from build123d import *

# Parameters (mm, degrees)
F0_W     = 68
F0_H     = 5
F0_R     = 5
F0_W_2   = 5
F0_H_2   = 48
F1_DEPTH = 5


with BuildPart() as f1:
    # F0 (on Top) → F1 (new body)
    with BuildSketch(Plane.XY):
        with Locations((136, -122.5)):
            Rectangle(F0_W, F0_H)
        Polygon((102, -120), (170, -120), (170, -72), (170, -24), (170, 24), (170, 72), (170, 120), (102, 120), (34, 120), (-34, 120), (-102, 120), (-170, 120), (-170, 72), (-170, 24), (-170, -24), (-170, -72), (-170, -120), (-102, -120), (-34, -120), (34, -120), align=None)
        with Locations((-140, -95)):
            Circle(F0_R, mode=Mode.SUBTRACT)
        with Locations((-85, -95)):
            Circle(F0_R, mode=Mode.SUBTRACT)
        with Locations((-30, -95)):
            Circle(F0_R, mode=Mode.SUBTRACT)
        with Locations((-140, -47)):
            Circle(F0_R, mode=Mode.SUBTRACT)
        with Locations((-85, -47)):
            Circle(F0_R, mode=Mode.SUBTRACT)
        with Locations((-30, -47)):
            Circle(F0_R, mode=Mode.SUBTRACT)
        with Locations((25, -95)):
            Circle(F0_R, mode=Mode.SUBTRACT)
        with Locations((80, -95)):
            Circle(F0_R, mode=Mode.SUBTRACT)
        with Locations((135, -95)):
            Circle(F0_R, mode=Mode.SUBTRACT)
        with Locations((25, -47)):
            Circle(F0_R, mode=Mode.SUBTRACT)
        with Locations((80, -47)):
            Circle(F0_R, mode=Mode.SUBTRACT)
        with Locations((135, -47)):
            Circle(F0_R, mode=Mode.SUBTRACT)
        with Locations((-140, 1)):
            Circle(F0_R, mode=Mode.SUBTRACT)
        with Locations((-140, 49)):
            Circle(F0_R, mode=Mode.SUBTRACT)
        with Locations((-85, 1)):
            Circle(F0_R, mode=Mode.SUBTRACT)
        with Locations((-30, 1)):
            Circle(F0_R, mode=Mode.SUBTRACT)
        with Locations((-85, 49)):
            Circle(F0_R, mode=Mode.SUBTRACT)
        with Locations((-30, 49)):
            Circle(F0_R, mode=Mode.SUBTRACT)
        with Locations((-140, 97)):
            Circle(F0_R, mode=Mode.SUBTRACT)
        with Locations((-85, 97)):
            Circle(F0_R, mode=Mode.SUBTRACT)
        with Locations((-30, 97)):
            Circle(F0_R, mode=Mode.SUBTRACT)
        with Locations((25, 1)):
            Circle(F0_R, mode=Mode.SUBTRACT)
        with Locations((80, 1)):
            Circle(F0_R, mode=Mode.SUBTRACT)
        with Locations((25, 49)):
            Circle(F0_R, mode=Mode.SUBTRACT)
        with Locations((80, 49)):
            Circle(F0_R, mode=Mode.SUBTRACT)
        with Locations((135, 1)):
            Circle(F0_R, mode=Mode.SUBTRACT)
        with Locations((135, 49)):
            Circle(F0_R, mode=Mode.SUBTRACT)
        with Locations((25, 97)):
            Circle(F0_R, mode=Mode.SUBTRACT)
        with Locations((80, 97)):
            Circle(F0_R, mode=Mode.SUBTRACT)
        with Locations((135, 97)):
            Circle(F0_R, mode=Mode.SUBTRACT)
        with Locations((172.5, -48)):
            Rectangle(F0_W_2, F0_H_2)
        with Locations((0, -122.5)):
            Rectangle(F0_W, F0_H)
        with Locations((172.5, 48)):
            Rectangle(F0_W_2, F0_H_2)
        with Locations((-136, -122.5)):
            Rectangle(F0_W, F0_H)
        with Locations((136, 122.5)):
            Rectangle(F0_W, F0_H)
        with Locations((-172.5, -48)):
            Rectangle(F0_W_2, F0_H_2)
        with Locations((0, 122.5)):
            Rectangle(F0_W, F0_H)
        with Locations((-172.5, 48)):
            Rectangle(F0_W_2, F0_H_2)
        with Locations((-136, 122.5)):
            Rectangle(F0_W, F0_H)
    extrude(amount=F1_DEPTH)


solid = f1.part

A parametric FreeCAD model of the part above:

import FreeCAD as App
import Part
import Sketcher

V = App.Vector
Q = App.Units.Quantity

doc = App.newDocument("Part")
body = doc.addObject("PartDesign::Body", "Body")

# Sketch on XY plane
sketch1 = doc.addObject("Sketcher::SketchObject", "Sketch")
body.addObject(sketch1)
sketch1.AttachmentSupport = (doc.XY_Plane, [""])
sketch1.MapMode = "FlatFace"
sketch1.addGeometry(Part.LineSegment(V(102, -120, 0), V(102, -125, 0)), False)
sketch1.addGeometry(Part.LineSegment(V(102, -125, 0), V(170, -125, 0)), False)
sketch1.addGeometry(Part.LineSegment(V(170, -125, 0), V(170, -72, 0)), False)
sketch1.addGeometry(Part.LineSegment(V(170, -72, 0), V(175, -72, 0)), False)
sketch1.addGeometry(Part.LineSegment(V(175, -72, 0), V(175, -24, 0)), False)
sketch1.addGeometry(Part.LineSegment(V(175, -24, 0), V(170, -24, 0)), False)
sketch1.addGeometry(Part.LineSegment(V(170, -24, 0), V(170, 24, 0)), False)
sketch1.addGeometry(Part.LineSegment(V(170, 24, 0), V(175, 24, 0)), False)
sketch1.addGeometry(Part.LineSegment(V(175, 24, 0), V(175, 72, 0)), False)
sketch1.addGeometry(Part.LineSegment(V(175, 72, 0), V(170, 72, 0)), False)
sketch1.addGeometry(Part.LineSegment(V(170, 72, 0), V(170, 125, 0)), False)
sketch1.addGeometry(Part.LineSegment(V(170, 125, 0), V(102, 125, 0)), False)
sketch1.addGeometry(Part.LineSegment(V(102, 125, 0), V(102, 120, 0)), False)
sketch1.addGeometry(Part.LineSegment(V(102, 120, 0), V(34, 120, 0)), False)
sketch1.addGeometry(Part.LineSegment(V(34, 120, 0), V(34, 125, 0)), False)
sketch1.addGeometry(Part.LineSegment(V(34, 125, 0), V(-34, 125, 0)), False)
sketch1.addGeometry(Part.LineSegment(V(-34, 125, 0), V(-34, 120, 0)), False)
sketch1.addGeometry(Part.LineSegment(V(-34, 120, 0), V(-102, 120, 0)), False)
sketch1.addGeometry(Part.LineSegment(V(-102, 120, 0), V(-102, 125, 0)), False)
sketch1.addGeometry(Part.LineSegment(V(-102, 125, 0), V(-170, 125, 0)), False)
sketch1.addGeometry(Part.LineSegment(V(-170, 125, 0), V(-170, 72, 0)), False)
sketch1.addGeometry(Part.LineSegment(V(-170, 72, 0), V(-175, 72, 0)), False)
sketch1.addGeometry(Part.LineSegment(V(-175, 72, 0), V(-175, 24, 0)), False)
sketch1.addGeometry(Part.LineSegment(V(-175, 24, 0), V(-170, 24, 0)), False)
sketch1.addGeometry(Part.LineSegment(V(-170, 24, 0), V(-170, -24, 0)), False)
sketch1.addGeometry(Part.LineSegment(V(-170, -24, 0), V(-175, -24, 0)), False)
sketch1.addGeometry(Part.LineSegment(V(-175, -24, 0), V(-175, -72, 0)), False)
sketch1.addGeometry(Part.LineSegment(V(-175, -72, 0), V(-170, -72, 0)), False)
sketch1.addGeometry(Part.LineSegment(V(-170, -72, 0), V(-170, -125, 0)), False)
sketch1.addGeometry(Part.LineSegment(V(-170, -125, 0), V(-102, -125, 0)), False)
sketch1.addGeometry(Part.LineSegment(V(-102, -125, 0), V(-102, -120, 0)), False)
sketch1.addGeometry(Part.LineSegment(V(-102, -120, 0), V(-34, -120, 0)), False)
sketch1.addGeometry(Part.LineSegment(V(-34, -120, 0), V(-34, -125, 0)), False)
sketch1.addGeometry(Part.LineSegment(V(-34, -125, 0), V(34, -125, 0)), False)
sketch1.addGeometry(Part.LineSegment(V(34, -125, 0), V(34, -120, 0)), False)
sketch1.addGeometry(Part.LineSegment(V(34, -120, 0), V(102, -120, 0)), False)
sketch1.addGeometry(Part.Circle(V(-140, -95, 0), V(0, 0, 1), 5), False)
sketch1.addGeometry(Part.Circle(V(-85, -95, 0), V(0, 0, 1), 5), False)
sketch1.addGeometry(Part.Circle(V(-30, -95, 0), V(0, 0, 1), 5), False)
sketch1.addGeometry(Part.Circle(V(-140, -47, 0), V(0, 0, 1), 5), False)
sketch1.addGeometry(Part.Circle(V(-85, -47, 0), V(0, 0, 1), 5), False)
sketch1.addGeometry(Part.Circle(V(-30, -47, 0), V(0, 0, 1), 5), False)
sketch1.addGeometry(Part.Circle(V(25, -95, 0), V(0, 0, 1), 5), False)
sketch1.addGeometry(Part.Circle(V(80, -95, 0), V(0, 0, 1), 5), False)
sketch1.addGeometry(Part.Circle(V(135, -95, 0), V(0, 0, 1), 5), False)
sketch1.addGeometry(Part.Circle(V(25, -47, 0), V(0, 0, 1), 5), False)
sketch1.addGeometry(Part.Circle(V(80, -47, 0), V(0, 0, 1), 5), False)
sketch1.addGeometry(Part.Circle(V(135, -47, 0), V(0, 0, 1), 5), False)
sketch1.addGeometry(Part.Circle(V(-140, 1, 0), V(0, 0, 1), 5), False)
sketch1.addGeometry(Part.Circle(V(-85, 1, 0), V(0, 0, 1), 5), False)
sketch1.addGeometry(Part.Circle(V(-140, 49, 0), V(0, 0, 1), 5), False)
sketch1.addGeometry(Part.Circle(V(-85, 49, 0), V(0, 0, 1), 5), False)
sketch1.addGeometry(Part.Circle(V(-30, 1, 0), V(0, 0, 1), 5), False)
sketch1.addGeometry(Part.Circle(V(-30, 49, 0), V(0, 0, 1), 5), False)
sketch1.addGeometry(Part.Circle(V(-140, 97, 0), V(0, 0, 1), 5), False)
sketch1.addGeometry(Part.Circle(V(-85, 97, 0), V(0, 0, 1), 5), False)
sketch1.addGeometry(Part.Circle(V(-30, 97, 0), V(0, 0, 1), 5), False)
sketch1.addGeometry(Part.Circle(V(25, 1, 0), V(0, 0, 1), 5), False)
sketch1.addGeometry(Part.Circle(V(25, 49, 0), V(0, 0, 1), 5), False)
sketch1.addGeometry(Part.Circle(V(80, 1, 0), V(0, 0, 1), 5), False)
sketch1.addGeometry(Part.Circle(V(135, 1, 0), V(0, 0, 1), 5), False)
sketch1.addGeometry(Part.Circle(V(80, 49, 0), V(0, 0, 1), 5), False)
sketch1.addGeometry(Part.Circle(V(135, 49, 0), V(0, 0, 1), 5), False)
sketch1.addGeometry(Part.Circle(V(25, 97, 0), V(0, 0, 1), 5), False)
sketch1.addGeometry(Part.Circle(V(80, 97, 0), V(0, 0, 1), 5), False)
sketch1.addGeometry(Part.Circle(V(135, 97, 0), V(0, 0, 1), 5), False)
sketch1.addConstraint(Sketcher.Constraint("Coincident", 0, 2, 1, 1))
sketch1.addConstraint(Sketcher.Constraint("Coincident", 1, 2, 2, 1))
sketch1.addConstraint(Sketcher.Constraint("Coincident", 2, 2, 3, 1))
sketch1.addConstraint(Sketcher.Constraint("Coincident", 3, 2, 4, 1))
sketch1.addConstraint(Sketcher.Constraint("Coincident", 4, 2, 5, 1))
sketch1.addConstraint(Sketcher.Constraint("Coincident", 5, 2, 6, 1))
sketch1.addConstraint(Sketcher.Constraint("Coincident", 6, 2, 7, 1))
sketch1.addConstraint(Sketcher.Constraint("Coincident", 7, 2, 8, 1))
sketch1.addConstraint(Sketcher.Constraint("Coincident", 8, 2, 9, 1))
sketch1.addConstraint(Sketcher.Constraint("Coincident", 9, 2, 10, 1))
sketch1.addConstraint(Sketcher.Constraint("Coincident", 10, 2, 11, 1))
sketch1.addConstraint(Sketcher.Constraint("Coincident", 11, 2, 12, 1))
sketch1.addConstraint(Sketcher.Constraint("Coincident", 12, 2, 13, 1))
sketch1.addConstraint(Sketcher.Constraint("Coincident", 13, 2, 14, 1))
sketch1.addConstraint(Sketcher.Constraint("Coincident", 14, 2, 15, 1))
sketch1.addConstraint(Sketcher.Constraint("Coincident", 15, 2, 16, 1))
sketch1.addConstraint(Sketcher.Constraint("Coincident", 16, 2, 17, 1))
sketch1.addConstraint(Sketcher.Constraint("Coincident", 17, 2, 18, 1))
sketch1.addConstraint(Sketcher.Constraint("Coincident", 18, 2, 19, 1))
sketch1.addConstraint(Sketcher.Constraint("Coincident", 19, 2, 20, 1))
sketch1.addConstraint(Sketcher.Constraint("Coincident", 20, 2, 21, 1))
sketch1.addConstraint(Sketcher.Constraint("Coincident", 21, 2, 22, 1))
sketch1.addConstraint(Sketcher.Constraint("Coincident", 22, 2, 23, 1))
sketch1.addConstraint(Sketcher.Constraint("Coincident", 23, 2, 24, 1))
sketch1.addConstraint(Sketcher.Constraint("Coincident", 24, 2, 25, 1))
sketch1.addConstraint(Sketcher.Constraint("Coincident", 25, 2, 26, 1))
sketch1.addConstraint(Sketcher.Constraint("Coincident", 26, 2, 27, 1))
sketch1.addConstraint(Sketcher.Constraint("Coincident", 27, 2, 28, 1))
sketch1.addConstraint(Sketcher.Constraint("Coincident", 28, 2, 29, 1))
sketch1.addConstraint(Sketcher.Constraint("Coincident", 29, 2, 30, 1))
sketch1.addConstraint(Sketcher.Constraint("Coincident", 30, 2, 31, 1))
sketch1.addConstraint(Sketcher.Constraint("Coincident", 31, 2, 32, 1))
sketch1.addConstraint(Sketcher.Constraint("Coincident", 32, 2, 33, 1))
sketch1.addConstraint(Sketcher.Constraint("Coincident", 33, 2, 34, 1))
sketch1.addConstraint(Sketcher.Constraint("Coincident", 34, 2, 35, 1))
sketch1.addConstraint(Sketcher.Constraint("Coincident", 35, 2, 0, 1))
sketch1.addConstraint(Sketcher.Constraint("Vertical", 0))
sketch1.addConstraint(Sketcher.Constraint("Horizontal", 1))
sketch1.addConstraint(Sketcher.Constraint("Vertical", 2))
sketch1.addConstraint(Sketcher.Constraint("Horizontal", 3))
sketch1.addConstraint(Sketcher.Constraint("Vertical", 4))
sketch1.addConstraint(Sketcher.Constraint("Horizontal", 5))
sketch1.addConstraint(Sketcher.Constraint("Vertical", 6))
sketch1.addConstraint(Sketcher.Constraint("Horizontal", 7))
sketch1.addConstraint(Sketcher.Constraint("Vertical", 8))
sketch1.addConstraint(Sketcher.Constraint("Horizontal", 9))
sketch1.addConstraint(Sketcher.Constraint("Vertical", 10))
sketch1.addConstraint(Sketcher.Constraint("Horizontal", 11))
sketch1.addConstraint(Sketcher.Constraint("Vertical", 12))
sketch1.addConstraint(Sketcher.Constraint("Horizontal", 13))
sketch1.addConstraint(Sketcher.Constraint("Vertical", 14))
sketch1.addConstraint(Sketcher.Constraint("Horizontal", 15))
sketch1.addConstraint(Sketcher.Constraint("Vertical", 16))
sketch1.addConstraint(Sketcher.Constraint("Horizontal", 17))
sketch1.addConstraint(Sketcher.Constraint("Vertical", 18))
sketch1.addConstraint(Sketcher.Constraint("Horizontal", 19))
sketch1.addConstraint(Sketcher.Constraint("Vertical", 20))
sketch1.addConstraint(Sketcher.Constraint("Horizontal", 21))
sketch1.addConstraint(Sketcher.Constraint("Vertical", 22))
sketch1.addConstraint(Sketcher.Constraint("Horizontal", 23))
sketch1.addConstraint(Sketcher.Constraint("Vertical", 24))
sketch1.addConstraint(Sketcher.Constraint("Horizontal", 25))
sketch1.addConstraint(Sketcher.Constraint("Vertical", 26))
sketch1.addConstraint(Sketcher.Constraint("Horizontal", 27))
sketch1.addConstraint(Sketcher.Constraint("Vertical", 28))
sketch1.addConstraint(Sketcher.Constraint("Horizontal", 29))
sketch1.addConstraint(Sketcher.Constraint("Vertical", 30))
sketch1.addConstraint(Sketcher.Constraint("Horizontal", 31))
sketch1.addConstraint(Sketcher.Constraint("Vertical", 32))
sketch1.addConstraint(Sketcher.Constraint("Horizontal", 33))
sketch1.addConstraint(Sketcher.Constraint("Vertical", 34))
sketch1.addConstraint(Sketcher.Constraint("Horizontal", 35))
sketch1.addConstraint(Sketcher.Constraint("Equal", 36, 37))
sketch1.addConstraint(Sketcher.Constraint("Equal", 37, 38))
sketch1.addConstraint(Sketcher.Constraint("Equal", 38, 39))
sketch1.addConstraint(Sketcher.Constraint("Equal", 39, 40))
sketch1.addConstraint(Sketcher.Constraint("Equal", 40, 41))
sketch1.addConstraint(Sketcher.Constraint("Equal", 41, 42))
sketch1.addConstraint(Sketcher.Constraint("Equal", 42, 43))
sketch1.addConstraint(Sketcher.Constraint("Equal", 43, 44))
sketch1.addConstraint(Sketcher.Constraint("Equal", 44, 45))
sketch1.addConstraint(Sketcher.Constraint("Equal", 45, 46))
sketch1.addConstraint(Sketcher.Constraint("Equal", 46, 47))
sketch1.addConstraint(Sketcher.Constraint("Equal", 47, 48))
sketch1.addConstraint(Sketcher.Constraint("Equal", 48, 49))
sketch1.addConstraint(Sketcher.Constraint("Equal", 49, 50))
sketch1.addConstraint(Sketcher.Constraint("Equal", 50, 51))
sketch1.addConstraint(Sketcher.Constraint("Equal", 51, 52))
sketch1.addConstraint(Sketcher.Constraint("Equal", 52, 53))
sketch1.addConstraint(Sketcher.Constraint("Equal", 53, 54))
sketch1.addConstraint(Sketcher.Constraint("Equal", 54, 55))
sketch1.addConstraint(Sketcher.Constraint("Equal", 55, 56))
sketch1.addConstraint(Sketcher.Constraint("Equal", 56, 57))
sketch1.addConstraint(Sketcher.Constraint("Equal", 57, 58))
sketch1.addConstraint(Sketcher.Constraint("Equal", 58, 59))
sketch1.addConstraint(Sketcher.Constraint("Equal", 59, 60))
sketch1.addConstraint(Sketcher.Constraint("Equal", 60, 61))
sketch1.addConstraint(Sketcher.Constraint("Equal", 61, 62))
sketch1.addConstraint(Sketcher.Constraint("Equal", 62, 63))
sketch1.addConstraint(Sketcher.Constraint("Equal", 63, 64))
sketch1.addConstraint(Sketcher.Constraint("Equal", 64, 65))
sketch1.addConstraint(Sketcher.Constraint("Symmetric", 0, 2, 18, 2, -1, 1))
sketch1.addConstraint(Sketcher.Constraint("Symmetric", 2, 2, 20, 2, -1, 1))
sketch1.addConstraint(Sketcher.Constraint("Symmetric", 4, 2, 22, 2, -1, 1))
sketch1.addConstraint(Sketcher.Constraint("Symmetric", 6, 2, 24, 2, -1, 1))
sketch1.addConstraint(Sketcher.Constraint("Symmetric", 8, 2, 26, 2, -1, 1))
sketch1.addConstraint(Sketcher.Constraint("Symmetric", 10, 2, 28, 2, -1, 1))
sketch1.addConstraint(Sketcher.Constraint("Symmetric", 12, 2, 30, 2, -1, 1))
sketch1.addConstraint(Sketcher.Constraint("Symmetric", 14, 2, 32, 2, -1, 1))
sketch1.addConstraint(Sketcher.Constraint("Symmetric", 16, 2, 34, 2, -1, 1))
sketch1.addConstraint(Sketcher.Constraint("Symmetric", 13, 2, 16, 2, -2))
sketch1.addConstraint(Sketcher.Constraint("Symmetric", 11, 2, 18, 2, -2))
sketch1.addConstraint(Sketcher.Constraint("Symmetric", 9, 2, 20, 2, -2))
sketch1.addConstraint(Sketcher.Constraint("Symmetric", 7, 2, 22, 2, -2))
sketch1.addConstraint(Sketcher.Constraint("Horizontal", 36, 3, 37, 3))
sketch1.addConstraint(Sketcher.Constraint("Horizontal", 37, 3, 38, 3))
sketch1.addConstraint(Sketcher.Constraint("Horizontal", 39, 3, 40, 3))
sketch1.addConstraint(Sketcher.Constraint("Horizontal", 40, 3, 41, 3))
sketch1.addConstraint(Sketcher.Constraint("Horizontal", 38, 3, 42, 3))
sketch1.addConstraint(Sketcher.Constraint("Horizontal", 42, 3, 43, 3))
sketch1.addConstraint(Sketcher.Constraint("Horizontal", 43, 3, 44, 3))
sketch1.addConstraint(Sketcher.Constraint("Horizontal", 41, 3, 45, 3))
sketch1.addConstraint(Sketcher.Constraint("Horizontal", 45, 3, 46, 3))
sketch1.addConstraint(Sketcher.Constraint("Horizontal", 46, 3, 47, 3))
sketch1.addConstraint(Sketcher.Constraint("Horizontal", 48, 3, 49, 3))
sketch1.addConstraint(Sketcher.Constraint("Horizontal", 50, 3, 51, 3))
sketch1.addConstraint(Sketcher.Constraint("Horizontal", 49, 3, 52, 3))
sketch1.addConstraint(Sketcher.Constraint("Horizontal", 51, 3, 53, 3))
sketch1.addConstraint(Sketcher.Constraint("Horizontal", 54, 3, 55, 3))
sketch1.addConstraint(Sketcher.Constraint("Horizontal", 55, 3, 56, 3))
sketch1.addConstraint(Sketcher.Constraint("Horizontal", 52, 3, 57, 3))
sketch1.addConstraint(Sketcher.Constraint("Horizontal", 53, 3, 58, 3))
sketch1.addConstraint(Sketcher.Constraint("Horizontal", 57, 3, 59, 3))
sketch1.addConstraint(Sketcher.Constraint("Horizontal", 59, 3, 60, 3))
sketch1.addConstraint(Sketcher.Constraint("Horizontal", 58, 3, 61, 3))
sketch1.addConstraint(Sketcher.Constraint("Horizontal", 61, 3, 62, 3))
sketch1.addConstraint(Sketcher.Constraint("Horizontal", 56, 3, 63, 3))
sketch1.addConstraint(Sketcher.Constraint("Horizontal", 63, 3, 64, 3))
sketch1.addConstraint(Sketcher.Constraint("Horizontal", 64, 3, 65, 3))
sketch1.addConstraint(Sketcher.Constraint("Horizontal", 11, 2, 14, 2))
sketch1.addConstraint(Sketcher.Constraint("Vertical", 36, 3, 39, 3))
sketch1.addConstraint(Sketcher.Constraint("Vertical", 37, 3, 40, 3))
sketch1.addConstraint(Sketcher.Constraint("Vertical", 38, 3, 41, 3))
sketch1.addConstraint(Sketcher.Constraint("Vertical", 42, 3, 45, 3))
sketch1.addConstraint(Sketcher.Constraint("Vertical", 43, 3, 46, 3))
sketch1.addConstraint(Sketcher.Constraint("Vertical", 44, 3, 47, 3))
sketch1.addConstraint(Sketcher.Constraint("Vertical", 39, 3, 48, 3))
sketch1.addConstraint(Sketcher.Constraint("Vertical", 40, 3, 49, 3))
sketch1.addConstraint(Sketcher.Constraint("Vertical", 48, 3, 50, 3))
sketch1.addConstraint(Sketcher.Constraint("Vertical", 49, 3, 51, 3))
sketch1.addConstraint(Sketcher.Constraint("Vertical", 41, 3, 52, 3))
sketch1.addConstraint(Sketcher.Constraint("Vertical", 52, 3, 53, 3))
sketch1.addConstraint(Sketcher.Constraint("Vertical", 50, 3, 54, 3))
sketch1.addConstraint(Sketcher.Constraint("Vertical", 51, 3, 55, 3))
sketch1.addConstraint(Sketcher.Constraint("Vertical", 53, 3, 56, 3))
sketch1.addConstraint(Sketcher.Constraint("Vertical", 45, 3, 57, 3))
sketch1.addConstraint(Sketcher.Constraint("Vertical", 57, 3, 58, 3))
sketch1.addConstraint(Sketcher.Constraint("Vertical", 46, 3, 59, 3))
sketch1.addConstraint(Sketcher.Constraint("Vertical", 47, 3, 60, 3))
sketch1.addConstraint(Sketcher.Constraint("Vertical", 59, 3, 61, 3))
sketch1.addConstraint(Sketcher.Constraint("Vertical", 60, 3, 62, 3))
sketch1.addConstraint(Sketcher.Constraint("Vertical", 58, 3, 63, 3))
sketch1.addConstraint(Sketcher.Constraint("Vertical", 61, 3, 64, 3))
sketch1.addConstraint(Sketcher.Constraint("Vertical", 62, 3, 65, 3))
sketch1.addConstraint(Sketcher.Constraint("Vertical", 2, 2, 5, 2))
sketch1.addConstraint(Sketcher.Constraint("Equal", 11, 13))
sketch1.addConstraint(Sketcher.Constraint("Equal", 13, 15))
sketch1.addConstraint(Sketcher.Constraint("Equal", 27, 0))
sketch1.addConstraint(Sketcher.Constraint("Equal", 4, 6))
sketch1.addConstraint(Sketcher.Constraint("Diameter", 36, Q("10 mm")))
sketch1.addConstraint(Sketcher.Constraint("DistanceX", 1, 1, 1, 2, Q("68 mm")))
sketch1.addConstraint(Sketcher.Constraint("DistanceX", 3, 1, 3, 2, Q("5 mm")))
sketch1.addConstraint(Sketcher.Constraint("DistanceY", 2, 1, 2, 2, Q("53 mm")))
sketch1.addConstraint(Sketcher.Constraint("DistanceY", 4, 1, 4, 2, Q("48 mm")))
sketch1.addConstraint(Sketcher.Constraint("DistanceX", 36, 3, -1, 1, Q("140 mm")))
sketch1.addConstraint(Sketcher.Constraint("DistanceY", 36, 3, -1, 1, Q("95 mm")))
sketch1.addConstraint(Sketcher.Constraint("DistanceX", 37, 3, -1, 1, Q("85 mm")))
sketch1.addConstraint(Sketcher.Constraint("DistanceX", 38, 3, -1, 1, Q("30 mm")))
sketch1.addConstraint(Sketcher.Constraint("DistanceY", 39, 3, -1, 1, Q("47 mm")))
sketch1.addConstraint(Sketcher.Constraint("DistanceX", -1, 1, 42, 3, Q("25 mm")))
sketch1.addConstraint(Sketcher.Constraint("DistanceX", -1, 1, 43, 3, Q("80 mm")))
sketch1.addConstraint(Sketcher.Constraint("DistanceX", -1, 1, 44, 3, Q("135 mm")))
sketch1.addConstraint(Sketcher.Constraint("DistanceY", -1, 1, 48, 3, Q("1 mm")))
sketch1.addConstraint(Sketcher.Constraint("DistanceY", -1, 1, 50, 3, Q("49 mm")))
sketch1.addConstraint(Sketcher.Constraint("DistanceY", -1, 1, 54, 3, Q("97 mm")))
pad1 = doc.addObject("PartDesign::Pad", "Pad")
body.addObject(pad1)
pad1.Profile = sketch1
pad1.Length = 5

doc.recompute()
